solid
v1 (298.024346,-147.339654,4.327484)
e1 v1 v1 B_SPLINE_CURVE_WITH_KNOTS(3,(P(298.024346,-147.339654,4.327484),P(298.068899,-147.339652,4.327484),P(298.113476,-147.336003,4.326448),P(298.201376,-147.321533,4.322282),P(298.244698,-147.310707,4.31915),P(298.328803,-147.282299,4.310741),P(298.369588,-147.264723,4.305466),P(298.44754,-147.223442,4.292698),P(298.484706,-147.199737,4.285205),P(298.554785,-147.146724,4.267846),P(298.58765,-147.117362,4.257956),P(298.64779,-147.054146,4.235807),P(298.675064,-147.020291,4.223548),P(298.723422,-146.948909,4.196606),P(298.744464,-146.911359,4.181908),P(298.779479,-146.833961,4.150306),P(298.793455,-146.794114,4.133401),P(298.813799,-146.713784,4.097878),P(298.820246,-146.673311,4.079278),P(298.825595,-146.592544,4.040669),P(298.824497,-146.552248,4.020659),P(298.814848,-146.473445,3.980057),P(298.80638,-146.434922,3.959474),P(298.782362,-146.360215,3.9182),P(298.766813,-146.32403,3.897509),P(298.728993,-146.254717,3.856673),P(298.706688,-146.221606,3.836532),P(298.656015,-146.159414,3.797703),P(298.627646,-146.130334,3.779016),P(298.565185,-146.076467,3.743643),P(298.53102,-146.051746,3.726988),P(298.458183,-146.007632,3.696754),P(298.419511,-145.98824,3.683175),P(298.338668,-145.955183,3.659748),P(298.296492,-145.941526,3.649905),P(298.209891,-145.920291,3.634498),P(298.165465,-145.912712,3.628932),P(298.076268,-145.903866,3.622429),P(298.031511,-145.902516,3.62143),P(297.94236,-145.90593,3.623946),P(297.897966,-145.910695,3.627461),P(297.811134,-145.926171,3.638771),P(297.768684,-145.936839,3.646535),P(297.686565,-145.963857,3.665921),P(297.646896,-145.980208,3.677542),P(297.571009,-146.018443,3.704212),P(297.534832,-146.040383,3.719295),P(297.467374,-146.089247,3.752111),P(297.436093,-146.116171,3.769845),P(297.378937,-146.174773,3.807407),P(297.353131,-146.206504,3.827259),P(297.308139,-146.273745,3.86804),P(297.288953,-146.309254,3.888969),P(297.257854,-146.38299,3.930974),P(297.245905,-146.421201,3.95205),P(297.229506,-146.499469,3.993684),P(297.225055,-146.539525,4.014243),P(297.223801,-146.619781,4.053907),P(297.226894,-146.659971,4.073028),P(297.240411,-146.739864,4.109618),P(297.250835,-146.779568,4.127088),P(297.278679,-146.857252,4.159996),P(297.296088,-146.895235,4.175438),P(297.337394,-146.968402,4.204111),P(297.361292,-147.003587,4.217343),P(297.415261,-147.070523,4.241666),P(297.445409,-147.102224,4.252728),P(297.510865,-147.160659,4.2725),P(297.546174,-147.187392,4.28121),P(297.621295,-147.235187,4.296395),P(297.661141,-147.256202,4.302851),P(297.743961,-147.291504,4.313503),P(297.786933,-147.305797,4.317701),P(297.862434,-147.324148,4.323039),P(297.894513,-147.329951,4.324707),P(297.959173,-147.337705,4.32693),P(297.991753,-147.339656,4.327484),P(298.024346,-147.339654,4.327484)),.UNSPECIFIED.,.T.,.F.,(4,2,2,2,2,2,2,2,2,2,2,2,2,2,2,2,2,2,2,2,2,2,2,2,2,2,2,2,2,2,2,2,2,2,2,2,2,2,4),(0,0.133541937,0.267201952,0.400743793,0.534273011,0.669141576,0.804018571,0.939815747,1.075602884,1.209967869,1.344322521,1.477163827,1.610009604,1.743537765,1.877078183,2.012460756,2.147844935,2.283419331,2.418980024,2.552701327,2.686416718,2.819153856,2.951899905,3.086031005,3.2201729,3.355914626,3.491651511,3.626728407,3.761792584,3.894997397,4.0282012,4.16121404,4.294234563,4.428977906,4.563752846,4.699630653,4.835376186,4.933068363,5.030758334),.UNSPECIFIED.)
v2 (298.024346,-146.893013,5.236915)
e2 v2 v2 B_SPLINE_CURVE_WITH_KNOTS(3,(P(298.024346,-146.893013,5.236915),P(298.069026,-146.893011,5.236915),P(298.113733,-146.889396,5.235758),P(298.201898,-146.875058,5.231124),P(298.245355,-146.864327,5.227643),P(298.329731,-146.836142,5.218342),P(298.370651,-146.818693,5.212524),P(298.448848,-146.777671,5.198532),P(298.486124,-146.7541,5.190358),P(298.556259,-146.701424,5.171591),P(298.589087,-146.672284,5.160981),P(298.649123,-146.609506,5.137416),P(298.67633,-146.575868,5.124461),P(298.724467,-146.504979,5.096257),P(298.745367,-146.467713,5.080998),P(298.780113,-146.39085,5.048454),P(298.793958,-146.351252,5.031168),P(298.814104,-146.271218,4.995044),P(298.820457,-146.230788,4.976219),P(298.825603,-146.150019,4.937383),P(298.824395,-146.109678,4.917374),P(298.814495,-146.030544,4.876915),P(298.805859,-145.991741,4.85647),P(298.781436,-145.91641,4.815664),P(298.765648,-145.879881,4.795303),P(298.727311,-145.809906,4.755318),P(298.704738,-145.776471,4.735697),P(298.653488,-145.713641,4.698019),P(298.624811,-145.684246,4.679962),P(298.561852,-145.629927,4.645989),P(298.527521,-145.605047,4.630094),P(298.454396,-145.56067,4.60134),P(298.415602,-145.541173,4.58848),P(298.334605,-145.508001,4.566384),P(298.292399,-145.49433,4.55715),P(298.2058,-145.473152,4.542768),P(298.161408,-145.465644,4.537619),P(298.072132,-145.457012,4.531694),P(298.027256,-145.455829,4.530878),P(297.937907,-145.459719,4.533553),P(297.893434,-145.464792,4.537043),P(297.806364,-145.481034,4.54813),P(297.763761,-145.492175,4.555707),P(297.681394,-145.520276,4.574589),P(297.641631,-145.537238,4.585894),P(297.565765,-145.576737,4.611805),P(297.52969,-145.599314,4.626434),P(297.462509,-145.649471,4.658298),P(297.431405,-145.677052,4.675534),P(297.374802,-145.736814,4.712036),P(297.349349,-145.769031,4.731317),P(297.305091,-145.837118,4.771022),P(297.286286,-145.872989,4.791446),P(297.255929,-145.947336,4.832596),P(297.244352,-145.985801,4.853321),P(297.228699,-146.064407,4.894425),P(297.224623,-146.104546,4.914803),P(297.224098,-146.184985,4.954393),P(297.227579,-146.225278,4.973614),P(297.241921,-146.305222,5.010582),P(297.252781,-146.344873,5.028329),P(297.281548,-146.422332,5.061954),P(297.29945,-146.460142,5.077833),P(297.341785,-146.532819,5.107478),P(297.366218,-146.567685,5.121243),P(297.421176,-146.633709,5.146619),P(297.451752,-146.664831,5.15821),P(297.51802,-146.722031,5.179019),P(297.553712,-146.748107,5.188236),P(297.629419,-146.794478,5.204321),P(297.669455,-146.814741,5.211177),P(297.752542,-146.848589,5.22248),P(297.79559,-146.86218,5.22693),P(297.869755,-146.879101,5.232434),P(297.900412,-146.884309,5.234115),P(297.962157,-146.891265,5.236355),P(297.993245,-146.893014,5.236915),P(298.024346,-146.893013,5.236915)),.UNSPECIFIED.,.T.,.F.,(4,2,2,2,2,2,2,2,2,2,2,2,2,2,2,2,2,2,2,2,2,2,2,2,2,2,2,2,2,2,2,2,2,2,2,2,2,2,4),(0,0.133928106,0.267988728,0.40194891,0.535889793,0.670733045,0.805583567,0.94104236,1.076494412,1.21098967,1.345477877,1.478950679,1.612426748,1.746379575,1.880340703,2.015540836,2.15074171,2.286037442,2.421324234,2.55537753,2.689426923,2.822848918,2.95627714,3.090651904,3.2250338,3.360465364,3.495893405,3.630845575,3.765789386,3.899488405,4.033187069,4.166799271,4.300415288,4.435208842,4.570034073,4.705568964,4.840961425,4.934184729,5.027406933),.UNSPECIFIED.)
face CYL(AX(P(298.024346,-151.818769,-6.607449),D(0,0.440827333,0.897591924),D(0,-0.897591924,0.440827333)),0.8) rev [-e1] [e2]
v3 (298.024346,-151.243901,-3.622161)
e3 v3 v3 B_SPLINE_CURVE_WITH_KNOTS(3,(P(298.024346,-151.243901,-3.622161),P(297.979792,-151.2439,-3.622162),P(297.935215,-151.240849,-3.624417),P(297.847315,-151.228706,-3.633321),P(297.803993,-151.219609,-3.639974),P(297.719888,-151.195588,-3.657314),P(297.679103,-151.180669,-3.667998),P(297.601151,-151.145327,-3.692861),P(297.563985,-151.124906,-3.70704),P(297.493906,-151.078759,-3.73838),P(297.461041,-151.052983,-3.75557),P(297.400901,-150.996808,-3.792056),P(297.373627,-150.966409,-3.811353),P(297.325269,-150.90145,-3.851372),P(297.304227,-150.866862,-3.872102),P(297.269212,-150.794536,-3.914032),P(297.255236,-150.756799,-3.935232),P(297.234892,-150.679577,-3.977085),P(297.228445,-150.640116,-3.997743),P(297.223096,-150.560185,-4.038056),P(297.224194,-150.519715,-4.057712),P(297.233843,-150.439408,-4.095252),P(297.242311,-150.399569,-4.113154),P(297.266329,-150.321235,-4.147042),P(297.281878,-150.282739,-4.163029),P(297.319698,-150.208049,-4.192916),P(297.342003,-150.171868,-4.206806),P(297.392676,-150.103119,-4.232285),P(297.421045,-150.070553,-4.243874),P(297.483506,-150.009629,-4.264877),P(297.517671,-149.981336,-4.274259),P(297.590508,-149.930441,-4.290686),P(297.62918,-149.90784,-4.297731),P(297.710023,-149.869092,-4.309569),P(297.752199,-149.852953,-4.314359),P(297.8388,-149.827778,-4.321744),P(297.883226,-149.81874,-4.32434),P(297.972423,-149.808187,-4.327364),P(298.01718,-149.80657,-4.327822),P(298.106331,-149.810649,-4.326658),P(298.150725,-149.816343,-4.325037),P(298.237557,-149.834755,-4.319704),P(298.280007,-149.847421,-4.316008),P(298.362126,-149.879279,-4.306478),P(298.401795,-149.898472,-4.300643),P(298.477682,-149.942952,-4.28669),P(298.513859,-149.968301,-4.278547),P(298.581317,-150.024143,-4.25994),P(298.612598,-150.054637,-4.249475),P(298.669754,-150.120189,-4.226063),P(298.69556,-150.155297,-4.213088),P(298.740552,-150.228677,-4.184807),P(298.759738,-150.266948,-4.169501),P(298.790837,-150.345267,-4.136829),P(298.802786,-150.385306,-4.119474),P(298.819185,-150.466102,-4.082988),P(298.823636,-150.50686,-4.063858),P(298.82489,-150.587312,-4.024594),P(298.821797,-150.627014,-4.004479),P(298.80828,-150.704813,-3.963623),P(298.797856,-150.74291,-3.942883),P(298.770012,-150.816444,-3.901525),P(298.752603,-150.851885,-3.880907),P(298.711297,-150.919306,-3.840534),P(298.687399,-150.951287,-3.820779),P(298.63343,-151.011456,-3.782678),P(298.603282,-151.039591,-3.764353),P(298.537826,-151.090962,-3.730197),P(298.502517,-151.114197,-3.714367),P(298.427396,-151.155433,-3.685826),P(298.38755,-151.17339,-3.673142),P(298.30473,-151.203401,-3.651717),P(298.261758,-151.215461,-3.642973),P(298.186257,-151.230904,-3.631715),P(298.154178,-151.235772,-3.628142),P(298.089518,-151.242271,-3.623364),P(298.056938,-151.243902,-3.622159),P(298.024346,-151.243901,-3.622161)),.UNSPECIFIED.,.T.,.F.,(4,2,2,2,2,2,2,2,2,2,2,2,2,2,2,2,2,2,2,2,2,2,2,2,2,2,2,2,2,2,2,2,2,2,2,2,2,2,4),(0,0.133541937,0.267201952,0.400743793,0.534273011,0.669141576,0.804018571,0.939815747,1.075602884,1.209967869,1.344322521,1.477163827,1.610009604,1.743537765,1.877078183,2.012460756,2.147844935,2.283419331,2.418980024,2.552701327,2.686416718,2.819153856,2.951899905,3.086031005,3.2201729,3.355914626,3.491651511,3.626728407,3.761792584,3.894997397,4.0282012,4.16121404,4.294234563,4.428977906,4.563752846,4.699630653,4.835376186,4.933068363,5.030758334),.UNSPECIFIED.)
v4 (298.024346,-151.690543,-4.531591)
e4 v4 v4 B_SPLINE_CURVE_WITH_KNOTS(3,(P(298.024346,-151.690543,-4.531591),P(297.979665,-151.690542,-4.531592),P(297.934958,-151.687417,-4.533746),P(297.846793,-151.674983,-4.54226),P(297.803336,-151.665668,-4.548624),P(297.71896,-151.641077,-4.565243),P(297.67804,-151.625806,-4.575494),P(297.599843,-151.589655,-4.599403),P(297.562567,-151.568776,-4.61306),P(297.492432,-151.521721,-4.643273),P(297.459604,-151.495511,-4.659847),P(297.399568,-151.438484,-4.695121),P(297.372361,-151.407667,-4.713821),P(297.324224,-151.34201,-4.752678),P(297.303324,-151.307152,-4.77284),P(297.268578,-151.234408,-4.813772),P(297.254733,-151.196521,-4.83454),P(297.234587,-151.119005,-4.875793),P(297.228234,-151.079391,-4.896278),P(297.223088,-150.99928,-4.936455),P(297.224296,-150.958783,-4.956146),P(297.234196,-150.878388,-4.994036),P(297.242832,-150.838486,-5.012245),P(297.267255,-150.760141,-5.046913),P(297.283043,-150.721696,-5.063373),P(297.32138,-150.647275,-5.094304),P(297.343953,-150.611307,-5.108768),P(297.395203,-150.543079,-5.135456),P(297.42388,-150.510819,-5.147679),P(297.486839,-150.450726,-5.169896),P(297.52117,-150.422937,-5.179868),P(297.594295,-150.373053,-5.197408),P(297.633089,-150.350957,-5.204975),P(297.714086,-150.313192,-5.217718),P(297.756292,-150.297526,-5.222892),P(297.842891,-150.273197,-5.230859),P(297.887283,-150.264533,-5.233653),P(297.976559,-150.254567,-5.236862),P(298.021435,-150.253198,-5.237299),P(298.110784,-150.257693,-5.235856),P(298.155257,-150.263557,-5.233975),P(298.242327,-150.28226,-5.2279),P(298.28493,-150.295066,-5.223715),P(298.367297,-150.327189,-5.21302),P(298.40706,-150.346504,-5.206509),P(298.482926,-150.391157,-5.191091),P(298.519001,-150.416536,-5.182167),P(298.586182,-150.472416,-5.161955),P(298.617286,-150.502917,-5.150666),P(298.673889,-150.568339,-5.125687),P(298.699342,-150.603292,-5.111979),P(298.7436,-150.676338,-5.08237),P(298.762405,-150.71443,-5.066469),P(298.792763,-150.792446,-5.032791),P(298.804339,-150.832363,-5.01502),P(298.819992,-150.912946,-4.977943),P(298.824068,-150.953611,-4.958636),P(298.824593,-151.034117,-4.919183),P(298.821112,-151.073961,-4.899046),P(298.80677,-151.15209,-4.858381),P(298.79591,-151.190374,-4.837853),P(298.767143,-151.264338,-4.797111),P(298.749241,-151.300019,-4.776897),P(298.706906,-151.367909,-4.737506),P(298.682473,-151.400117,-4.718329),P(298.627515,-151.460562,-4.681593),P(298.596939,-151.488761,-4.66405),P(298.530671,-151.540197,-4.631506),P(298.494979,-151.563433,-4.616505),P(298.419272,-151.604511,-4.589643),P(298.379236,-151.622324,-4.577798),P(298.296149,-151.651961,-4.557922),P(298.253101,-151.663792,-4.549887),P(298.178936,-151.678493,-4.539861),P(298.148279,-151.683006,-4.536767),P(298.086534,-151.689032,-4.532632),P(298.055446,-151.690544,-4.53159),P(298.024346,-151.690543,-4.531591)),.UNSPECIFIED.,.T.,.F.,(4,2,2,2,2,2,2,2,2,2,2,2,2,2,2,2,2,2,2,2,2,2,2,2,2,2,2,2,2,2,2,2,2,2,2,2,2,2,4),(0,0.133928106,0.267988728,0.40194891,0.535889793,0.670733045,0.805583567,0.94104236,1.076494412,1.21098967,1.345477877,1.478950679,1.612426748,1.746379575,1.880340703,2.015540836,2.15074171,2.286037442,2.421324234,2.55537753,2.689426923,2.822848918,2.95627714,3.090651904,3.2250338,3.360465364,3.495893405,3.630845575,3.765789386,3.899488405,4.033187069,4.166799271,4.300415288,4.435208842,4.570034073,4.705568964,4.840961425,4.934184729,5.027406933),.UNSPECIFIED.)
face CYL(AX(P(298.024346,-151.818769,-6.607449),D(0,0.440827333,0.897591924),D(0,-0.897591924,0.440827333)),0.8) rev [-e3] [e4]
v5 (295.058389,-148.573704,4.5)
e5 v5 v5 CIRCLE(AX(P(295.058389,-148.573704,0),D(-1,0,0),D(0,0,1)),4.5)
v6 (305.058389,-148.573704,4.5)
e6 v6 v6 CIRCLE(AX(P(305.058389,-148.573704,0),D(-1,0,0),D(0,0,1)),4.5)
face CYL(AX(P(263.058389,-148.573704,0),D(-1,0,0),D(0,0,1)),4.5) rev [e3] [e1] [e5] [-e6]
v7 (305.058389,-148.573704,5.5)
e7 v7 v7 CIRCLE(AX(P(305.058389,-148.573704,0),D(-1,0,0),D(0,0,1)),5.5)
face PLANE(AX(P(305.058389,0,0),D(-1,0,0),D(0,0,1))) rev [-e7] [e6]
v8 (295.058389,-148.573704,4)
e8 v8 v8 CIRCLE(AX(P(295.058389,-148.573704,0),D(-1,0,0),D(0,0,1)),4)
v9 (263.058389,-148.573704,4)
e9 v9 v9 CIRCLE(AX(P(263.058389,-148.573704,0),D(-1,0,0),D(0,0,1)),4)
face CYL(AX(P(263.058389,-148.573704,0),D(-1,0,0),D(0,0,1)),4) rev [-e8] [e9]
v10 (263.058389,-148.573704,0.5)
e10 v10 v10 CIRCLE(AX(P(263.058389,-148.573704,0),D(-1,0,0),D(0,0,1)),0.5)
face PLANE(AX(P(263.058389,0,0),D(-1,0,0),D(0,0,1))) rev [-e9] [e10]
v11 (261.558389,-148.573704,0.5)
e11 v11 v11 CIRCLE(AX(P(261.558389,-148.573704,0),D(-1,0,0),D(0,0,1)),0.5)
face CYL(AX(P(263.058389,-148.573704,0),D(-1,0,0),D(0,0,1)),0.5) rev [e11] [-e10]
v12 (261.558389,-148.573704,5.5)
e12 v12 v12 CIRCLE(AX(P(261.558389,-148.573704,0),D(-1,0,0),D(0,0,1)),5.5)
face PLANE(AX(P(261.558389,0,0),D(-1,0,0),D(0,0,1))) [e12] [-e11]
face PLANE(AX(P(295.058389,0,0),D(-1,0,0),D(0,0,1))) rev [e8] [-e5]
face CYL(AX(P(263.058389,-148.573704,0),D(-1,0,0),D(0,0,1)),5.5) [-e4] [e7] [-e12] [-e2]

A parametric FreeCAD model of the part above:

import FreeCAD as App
import Part
import Sketcher

V = App.Vector
Q = App.Units.Quantity


def add_polygon(sketch, points):
    """Adds a closed chain of lines whose ends are joined by coincident constraints."""
    first, n = sketch.GeometryCount, len(points)
    for a, b in zip(points, points[1:] + points[:1]):
        sketch.addGeometry(Part.LineSegment(App.Vector(*a, 0), App.Vector(*b, 0)), False)
    for i in range(n):
        sketch.addConstraint(Sketcher.Constraint("Coincident", first + i, 2, first + (i + 1) % n, 1))

doc = App.newDocument("Part")
body = doc.addObject("PartDesign::Body", "Body")

# Sketch on XY plane
sketch1 = doc.addObject("Sketcher::SketchObject", "Sketch")
body.addObject(sketch1)
sketch1.AttachmentSupport = (doc.XY_Plane, [""])
sketch1.MapMode = "FlatFace"
add_polygon(sketch1, [(295.1, -144.6), (295.1, -144.1), (305.1, -144.1), (305.1, -143.1), (261.6, -143.1), (261.6, -148.1), (263.1, -148.1), (263.1, -144.6)])  # lines 0-7
sketch1.addGeometry(Part.LineSegment(V(261.6, -148.6, 0), V(305.1, -148.6, 0)), True)  # axis
sketch1.addConstraint([
    Sketcher.Constraint("Vertical", 0),
    Sketcher.Constraint("Horizontal", 1),
    Sketcher.Constraint("Vertical", 2),
    Sketcher.Constraint("Horizontal", 3),
    Sketcher.Constraint("Vertical", 4),
    Sketcher.Constraint("Horizontal", 5),
    Sketcher.Constraint("Vertical", 6),
    Sketcher.Constraint("Horizontal", 7),
    Sketcher.Constraint("Horizontal", 8),
    Sketcher.Constraint("Vertical", 4, 2, 8, 1),
    Sketcher.Constraint("Vertical", 2, 2, 8, 2),
    Sketcher.Constraint("DistanceX", 1, 1, 1, 2, Q("10 mm")),
    Sketcher.Constraint("DistanceX", 7, 1, 7, 2, Q("32 mm")),
    Sketcher.Constraint("DistanceY", 2, 1, 2, 2, Q("1 mm")),
    Sketcher.Constraint("DistanceY", 4, 2, 4, 1, Q("5 mm")),
    Sketcher.Constraint("DistanceX", 3, 2, 3, 1, Q("43.5 mm")),
    Sketcher.Constraint("DistanceY", 0, 1, 0, 2, Q("0.5 mm")),
    Sketcher.Constraint("DistanceY", 8, 1, 6, 2, Q("4 mm")),
    Sketcher.Constraint("DistanceX", -1, 1, 0, 2, Q("295.058389 mm")),
    Sketcher.Constraint("DistanceY", 0, 2, -1, 1, Q("144.073704 mm")),
])
revolution = doc.addObject("PartDesign::Revolution", "Revolution")
body.addObject(revolution)
revolution.Profile = sketch1
revolution.ReferenceAxis = (sketch1, ["Axis0"])
revolution.Angle = 360

# Sketch on an angled plane
sketch2 = doc.addObject("Sketcher::SketchObject", "Sketch001")
body.addObject(sketch2)
sketch2.Placement = App.Placement(V(0, -26.44759, -53.851341), App.Rotation(V(1, 0, 0), V(0, 0.897591924, -0.440827333), V(0, 0.440827333, 0.897591924), "ZXY"))
sketch2.addGeometry(Part.Circle(V(298, -133.4, 0), V(0, 0, 1), 0.8), False)
sketch2.addConstraint([
    Sketcher.Constraint("Diameter", 0, Q("1.6 mm")),
    Sketcher.Constraint("DistanceX", -1, 1, 0, 3, Q("298.024346 mm")),
    Sketcher.Constraint("DistanceY", 0, 3, -1, 1, Q("133.358557 mm")),
])
pocket1 = doc.addObject("PartDesign::Pocket", "Pocket")
body.addObject(pocket1)
pocket1.Profile = sketch2
pocket1.Type = "ThroughAll"

doc.recompute()
